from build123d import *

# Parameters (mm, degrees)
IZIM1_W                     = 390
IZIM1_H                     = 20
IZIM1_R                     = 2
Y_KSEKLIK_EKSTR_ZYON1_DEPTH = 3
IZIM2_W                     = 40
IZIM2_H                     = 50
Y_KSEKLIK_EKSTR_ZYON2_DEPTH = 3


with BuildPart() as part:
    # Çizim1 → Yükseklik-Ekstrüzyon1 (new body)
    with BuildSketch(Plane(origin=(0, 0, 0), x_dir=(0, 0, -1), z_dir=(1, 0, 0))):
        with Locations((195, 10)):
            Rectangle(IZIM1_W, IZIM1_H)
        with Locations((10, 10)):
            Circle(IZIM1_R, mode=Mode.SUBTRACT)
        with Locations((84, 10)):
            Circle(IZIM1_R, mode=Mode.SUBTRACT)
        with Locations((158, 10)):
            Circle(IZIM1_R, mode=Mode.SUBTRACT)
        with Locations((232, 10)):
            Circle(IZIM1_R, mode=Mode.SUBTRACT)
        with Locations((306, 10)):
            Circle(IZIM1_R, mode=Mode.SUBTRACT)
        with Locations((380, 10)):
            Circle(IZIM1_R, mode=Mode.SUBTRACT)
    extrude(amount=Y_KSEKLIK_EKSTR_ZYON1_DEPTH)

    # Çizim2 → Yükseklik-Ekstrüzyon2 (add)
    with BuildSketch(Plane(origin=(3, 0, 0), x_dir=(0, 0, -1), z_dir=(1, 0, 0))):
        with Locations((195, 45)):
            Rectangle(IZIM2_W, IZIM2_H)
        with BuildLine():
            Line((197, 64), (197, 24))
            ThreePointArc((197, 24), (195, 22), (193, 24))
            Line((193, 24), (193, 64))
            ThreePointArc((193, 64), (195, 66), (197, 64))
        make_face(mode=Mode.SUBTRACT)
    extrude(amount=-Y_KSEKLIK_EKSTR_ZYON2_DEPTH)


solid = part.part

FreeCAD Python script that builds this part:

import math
import FreeCAD as App
import Part
import Sketcher
Q = App.Units.Quantity

doc = App.newDocument("Part")
params = doc.addObject("Spreadsheet::Sheet", "Params")
for row, (alias, value) in enumerate([
    ("sketch1_diameter", "4 mm"),
    ("sketch1_width", "20 mm"),
    ("sketch1_height", "390 mm"),
    ("pad1_length", "3 mm"),
    ("sketch2_radius", "2 mm"),
    ("sketch2_width", "50 mm"),
    ("sketch2_width2", "40 mm"),
    ("pad2_length", "3 mm"),
], start=1):
    params.set(f"A{row}", alias)
    params.set(f"B{row}", "=" + value)
    params.setAlias(f"B{row}", alias)

body = doc.addObject("PartDesign::Body", "Body")

# Sketch on YZ plane
sketch1 = body.newObject("Sketcher::SketchObject", "Sketch")
sketch1.AttachmentSupport = (doc.getObject("YZ_Plane"), [""])
sketch1.MapMode = "FlatFace"
sketch1.addGeometry([
    Part.LineSegment(App.Vector(20, 0, 0), App.Vector(0, 0, 0)),  # 0
    Part.LineSegment(App.Vector(0, 0, 0), App.Vector(0, -390, 0)),  # 1
    Part.LineSegment(App.Vector(0, -390, 0), App.Vector(20, -390, 0)),  # 2
    Part.LineSegment(App.Vector(20, -390, 0), App.Vector(20, 0, 0)),  # 3
    Part.Circle(App.Vector(10, -10, 0), App.Vector(0, 0, 1), 2),  # 4
    Part.Circle(App.Vector(10, -84, 0), App.Vector(0, 0, 1), 2),  # 5
    Part.Circle(App.Vector(10, -158, 0), App.Vector(0, 0, 1), 2),  # 6
    Part.Circle(App.Vector(10, -232, 0), App.Vector(0, 0, 1), 2),  # 7
    Part.Circle(App.Vector(10, -306, 0), App.Vector(0, 0, 1), 2),  # 8
    Part.Circle(App.Vector(10, -380, 0), App.Vector(0, 0, 1), 2),  # 9
], False)
sketch1.addConstraint([
    Sketcher.Constraint("Coincident", 0, 2, 1, 1),
    Sketcher.Constraint("Coincident", 1, 2, 2, 1),
    Sketcher.Constraint("Coincident", 2, 2, 3, 1),
    Sketcher.Constraint("Coincident", 3, 2, 0, 1),
    Sketcher.Constraint("Horizontal", 0),
    Sketcher.Constraint("Vertical", 1),
    Sketcher.Constraint("Horizontal", 2),
    Sketcher.Constraint("Vertical", 3),
    Sketcher.Constraint("Coincident", 0, 2, -1, 1),
    Sketcher.Constraint("Equal", 4, 5),
    Sketcher.Constraint("Equal", 5, 6),
    Sketcher.Constraint("Equal", 6, 7),
    Sketcher.Constraint("Equal", 7, 8),
    Sketcher.Constraint("Equal", 8, 9),
    Sketcher.Constraint("Vertical", 4, 3, 5, 3),
    Sketcher.Constraint("Vertical", 5, 3, 6, 3),
    Sketcher.Constraint("Vertical", 6, 3, 7, 3),
    Sketcher.Constraint("Vertical", 7, 3, 8, 3),
    Sketcher.Constraint("Vertical", 8, 3, 9, 3),
    Sketcher.Constraint("Diameter", 4, Q("4 mm")),
    Sketcher.Constraint("DistanceX", 0, 2, 0, 1, Q("20 mm")),
    Sketcher.Constraint("DistanceY", 1, 2, 1, 1, Q("390 mm")),
    Sketcher.Constraint("DistanceX", -1, 1, 4, 3, Q("10 mm")),
    Sketcher.Constraint("DistanceY", 4, 3, -1, 1, Q("10 mm")),
    Sketcher.Constraint("DistanceY", 5, 3, -1, 1, Q("84 mm")),
    Sketcher.Constraint("DistanceY", 6, 3, -1, 1, Q("158 mm")),
    Sketcher.Constraint("DistanceY", 7, 3, -1, 1, Q("232 mm")),
    Sketcher.Constraint("DistanceY", 8, 3, -1, 1, Q("306 mm")),
    Sketcher.Constraint("DistanceY", 9, 3, -1, 1, Q("380 mm")),
])
sketch1.setExpression("Constraints[19]", "Params.sketch1_diameter")
sketch1.setExpression("Constraints[20]", "Params.sketch1_width")
sketch1.setExpression("Constraints[21]", "Params.sketch1_height")
pad1 = body.newObject("PartDesign::Pad", "Pad")
pad1.Profile = sketch1
pad1.setExpression("Length", "Params.pad1_length")

# Sketch on YZ plane
sketch2 = body.newObject("Sketcher::SketchObject", "Sketch001")
sketch2.AttachmentSupport = (doc.getObject("YZ_Plane"), [""])
sketch2.MapMode = "FlatFace"
sketch2.AttachmentOffset = App.Placement(App.Vector(0, 0, 3), App.Rotation())
sketch2.addGeometry([
    Part.LineSegment(App.Vector(70, -175, 0), App.Vector(20, -175, 0)),  # 0
    Part.LineSegment(App.Vector(20, -175, 0), App.Vector(20, -215, 0)),  # 1
    Part.LineSegment(App.Vector(20, -215, 0), App.Vector(70, -215, 0)),  # 2
    Part.LineSegment(App.Vector(70, -215, 0), App.Vector(70, -175, 0)),  # 3
    Part.ArcOfCircle(Part.Circle(App.Vector(64, -195, 0), App.Vector(0, 0, 1), 2), math.radians(-90), math.radians(90)),  # 4
    Part.LineSegment(App.Vector(64, -197, 0), App.Vector(24, -197, 0)),  # 5
    Part.ArcOfCircle(Part.Circle(App.Vector(24, -195, 0), App.Vector(0, 0, 1), 2), math.radians(90), math.radians(270)),  # 6
    Part.LineSegment(App.Vector(24, -193, 0), App.Vector(64, -193, 0)),  # 7
], False)
sketch2.addConstraint([
    Sketcher.Constraint("Coincident", 0, 2, 1, 1),
    Sketcher.Constraint("Coincident", 1, 2, 2, 1),
    Sketcher.Constraint("Coincident", 2, 2, 3, 1),
    Sketcher.Constraint("Coincident", 3, 2, 0, 1),
    Sketcher.Constraint("Tangent", 4, 1, 5, 1),
    Sketcher.Constraint("Tangent", 5, 2, 6, 2),
    Sketcher.Constraint("Tangent", 6, 1, 7, 1),
    Sketcher.Constraint("Tangent", 7, 2, 4, 2),
    Sketcher.Constraint("Horizontal", 0),
    Sketcher.Constraint("Vertical", 1),
    Sketcher.Constraint("Horizontal", 2),
    Sketcher.Constraint("Vertical", 3),
    Sketcher.Constraint("Horizontal", 5),
    Sketcher.Constraint("Horizontal", 7),
    Sketcher.Constraint("Equal", 7, 1),
    Sketcher.Constraint("Radius", 4, Q("2 mm")),
    Sketcher.Constraint("DistanceX", 0, 2, 0, 1, Q("50 mm")),
    Sketcher.Constraint("DistanceX", 5, 2, 5, 1, Q("40 mm")),
    Sketcher.Constraint("DistanceX", -1, 1, 4, 3, Q("64 mm")),
    Sketcher.Constraint("DistanceY", 4, 3, -1, 1, Q("195 mm")),
    Sketcher.Constraint("DistanceX", -1, 1, 0, 2, Q("20 mm")),
    Sketcher.Constraint("DistanceY", 0, 2, -1, 1, Q("175 mm")),
])
sketch2.setExpression("Constraints[15]", "Params.sketch2_radius")
sketch2.setExpression("Constraints[16]", "Params.sketch2_width")
sketch2.setExpression("Constraints[17]", "Params.sketch2_width2")
pad2 = body.newObject("PartDesign::Pad", "Pad001")
pad2.Profile = sketch2
pad2.setExpression("Length", "Params.pad2_length")
pad2.Reversed = True

doc.recompute()
